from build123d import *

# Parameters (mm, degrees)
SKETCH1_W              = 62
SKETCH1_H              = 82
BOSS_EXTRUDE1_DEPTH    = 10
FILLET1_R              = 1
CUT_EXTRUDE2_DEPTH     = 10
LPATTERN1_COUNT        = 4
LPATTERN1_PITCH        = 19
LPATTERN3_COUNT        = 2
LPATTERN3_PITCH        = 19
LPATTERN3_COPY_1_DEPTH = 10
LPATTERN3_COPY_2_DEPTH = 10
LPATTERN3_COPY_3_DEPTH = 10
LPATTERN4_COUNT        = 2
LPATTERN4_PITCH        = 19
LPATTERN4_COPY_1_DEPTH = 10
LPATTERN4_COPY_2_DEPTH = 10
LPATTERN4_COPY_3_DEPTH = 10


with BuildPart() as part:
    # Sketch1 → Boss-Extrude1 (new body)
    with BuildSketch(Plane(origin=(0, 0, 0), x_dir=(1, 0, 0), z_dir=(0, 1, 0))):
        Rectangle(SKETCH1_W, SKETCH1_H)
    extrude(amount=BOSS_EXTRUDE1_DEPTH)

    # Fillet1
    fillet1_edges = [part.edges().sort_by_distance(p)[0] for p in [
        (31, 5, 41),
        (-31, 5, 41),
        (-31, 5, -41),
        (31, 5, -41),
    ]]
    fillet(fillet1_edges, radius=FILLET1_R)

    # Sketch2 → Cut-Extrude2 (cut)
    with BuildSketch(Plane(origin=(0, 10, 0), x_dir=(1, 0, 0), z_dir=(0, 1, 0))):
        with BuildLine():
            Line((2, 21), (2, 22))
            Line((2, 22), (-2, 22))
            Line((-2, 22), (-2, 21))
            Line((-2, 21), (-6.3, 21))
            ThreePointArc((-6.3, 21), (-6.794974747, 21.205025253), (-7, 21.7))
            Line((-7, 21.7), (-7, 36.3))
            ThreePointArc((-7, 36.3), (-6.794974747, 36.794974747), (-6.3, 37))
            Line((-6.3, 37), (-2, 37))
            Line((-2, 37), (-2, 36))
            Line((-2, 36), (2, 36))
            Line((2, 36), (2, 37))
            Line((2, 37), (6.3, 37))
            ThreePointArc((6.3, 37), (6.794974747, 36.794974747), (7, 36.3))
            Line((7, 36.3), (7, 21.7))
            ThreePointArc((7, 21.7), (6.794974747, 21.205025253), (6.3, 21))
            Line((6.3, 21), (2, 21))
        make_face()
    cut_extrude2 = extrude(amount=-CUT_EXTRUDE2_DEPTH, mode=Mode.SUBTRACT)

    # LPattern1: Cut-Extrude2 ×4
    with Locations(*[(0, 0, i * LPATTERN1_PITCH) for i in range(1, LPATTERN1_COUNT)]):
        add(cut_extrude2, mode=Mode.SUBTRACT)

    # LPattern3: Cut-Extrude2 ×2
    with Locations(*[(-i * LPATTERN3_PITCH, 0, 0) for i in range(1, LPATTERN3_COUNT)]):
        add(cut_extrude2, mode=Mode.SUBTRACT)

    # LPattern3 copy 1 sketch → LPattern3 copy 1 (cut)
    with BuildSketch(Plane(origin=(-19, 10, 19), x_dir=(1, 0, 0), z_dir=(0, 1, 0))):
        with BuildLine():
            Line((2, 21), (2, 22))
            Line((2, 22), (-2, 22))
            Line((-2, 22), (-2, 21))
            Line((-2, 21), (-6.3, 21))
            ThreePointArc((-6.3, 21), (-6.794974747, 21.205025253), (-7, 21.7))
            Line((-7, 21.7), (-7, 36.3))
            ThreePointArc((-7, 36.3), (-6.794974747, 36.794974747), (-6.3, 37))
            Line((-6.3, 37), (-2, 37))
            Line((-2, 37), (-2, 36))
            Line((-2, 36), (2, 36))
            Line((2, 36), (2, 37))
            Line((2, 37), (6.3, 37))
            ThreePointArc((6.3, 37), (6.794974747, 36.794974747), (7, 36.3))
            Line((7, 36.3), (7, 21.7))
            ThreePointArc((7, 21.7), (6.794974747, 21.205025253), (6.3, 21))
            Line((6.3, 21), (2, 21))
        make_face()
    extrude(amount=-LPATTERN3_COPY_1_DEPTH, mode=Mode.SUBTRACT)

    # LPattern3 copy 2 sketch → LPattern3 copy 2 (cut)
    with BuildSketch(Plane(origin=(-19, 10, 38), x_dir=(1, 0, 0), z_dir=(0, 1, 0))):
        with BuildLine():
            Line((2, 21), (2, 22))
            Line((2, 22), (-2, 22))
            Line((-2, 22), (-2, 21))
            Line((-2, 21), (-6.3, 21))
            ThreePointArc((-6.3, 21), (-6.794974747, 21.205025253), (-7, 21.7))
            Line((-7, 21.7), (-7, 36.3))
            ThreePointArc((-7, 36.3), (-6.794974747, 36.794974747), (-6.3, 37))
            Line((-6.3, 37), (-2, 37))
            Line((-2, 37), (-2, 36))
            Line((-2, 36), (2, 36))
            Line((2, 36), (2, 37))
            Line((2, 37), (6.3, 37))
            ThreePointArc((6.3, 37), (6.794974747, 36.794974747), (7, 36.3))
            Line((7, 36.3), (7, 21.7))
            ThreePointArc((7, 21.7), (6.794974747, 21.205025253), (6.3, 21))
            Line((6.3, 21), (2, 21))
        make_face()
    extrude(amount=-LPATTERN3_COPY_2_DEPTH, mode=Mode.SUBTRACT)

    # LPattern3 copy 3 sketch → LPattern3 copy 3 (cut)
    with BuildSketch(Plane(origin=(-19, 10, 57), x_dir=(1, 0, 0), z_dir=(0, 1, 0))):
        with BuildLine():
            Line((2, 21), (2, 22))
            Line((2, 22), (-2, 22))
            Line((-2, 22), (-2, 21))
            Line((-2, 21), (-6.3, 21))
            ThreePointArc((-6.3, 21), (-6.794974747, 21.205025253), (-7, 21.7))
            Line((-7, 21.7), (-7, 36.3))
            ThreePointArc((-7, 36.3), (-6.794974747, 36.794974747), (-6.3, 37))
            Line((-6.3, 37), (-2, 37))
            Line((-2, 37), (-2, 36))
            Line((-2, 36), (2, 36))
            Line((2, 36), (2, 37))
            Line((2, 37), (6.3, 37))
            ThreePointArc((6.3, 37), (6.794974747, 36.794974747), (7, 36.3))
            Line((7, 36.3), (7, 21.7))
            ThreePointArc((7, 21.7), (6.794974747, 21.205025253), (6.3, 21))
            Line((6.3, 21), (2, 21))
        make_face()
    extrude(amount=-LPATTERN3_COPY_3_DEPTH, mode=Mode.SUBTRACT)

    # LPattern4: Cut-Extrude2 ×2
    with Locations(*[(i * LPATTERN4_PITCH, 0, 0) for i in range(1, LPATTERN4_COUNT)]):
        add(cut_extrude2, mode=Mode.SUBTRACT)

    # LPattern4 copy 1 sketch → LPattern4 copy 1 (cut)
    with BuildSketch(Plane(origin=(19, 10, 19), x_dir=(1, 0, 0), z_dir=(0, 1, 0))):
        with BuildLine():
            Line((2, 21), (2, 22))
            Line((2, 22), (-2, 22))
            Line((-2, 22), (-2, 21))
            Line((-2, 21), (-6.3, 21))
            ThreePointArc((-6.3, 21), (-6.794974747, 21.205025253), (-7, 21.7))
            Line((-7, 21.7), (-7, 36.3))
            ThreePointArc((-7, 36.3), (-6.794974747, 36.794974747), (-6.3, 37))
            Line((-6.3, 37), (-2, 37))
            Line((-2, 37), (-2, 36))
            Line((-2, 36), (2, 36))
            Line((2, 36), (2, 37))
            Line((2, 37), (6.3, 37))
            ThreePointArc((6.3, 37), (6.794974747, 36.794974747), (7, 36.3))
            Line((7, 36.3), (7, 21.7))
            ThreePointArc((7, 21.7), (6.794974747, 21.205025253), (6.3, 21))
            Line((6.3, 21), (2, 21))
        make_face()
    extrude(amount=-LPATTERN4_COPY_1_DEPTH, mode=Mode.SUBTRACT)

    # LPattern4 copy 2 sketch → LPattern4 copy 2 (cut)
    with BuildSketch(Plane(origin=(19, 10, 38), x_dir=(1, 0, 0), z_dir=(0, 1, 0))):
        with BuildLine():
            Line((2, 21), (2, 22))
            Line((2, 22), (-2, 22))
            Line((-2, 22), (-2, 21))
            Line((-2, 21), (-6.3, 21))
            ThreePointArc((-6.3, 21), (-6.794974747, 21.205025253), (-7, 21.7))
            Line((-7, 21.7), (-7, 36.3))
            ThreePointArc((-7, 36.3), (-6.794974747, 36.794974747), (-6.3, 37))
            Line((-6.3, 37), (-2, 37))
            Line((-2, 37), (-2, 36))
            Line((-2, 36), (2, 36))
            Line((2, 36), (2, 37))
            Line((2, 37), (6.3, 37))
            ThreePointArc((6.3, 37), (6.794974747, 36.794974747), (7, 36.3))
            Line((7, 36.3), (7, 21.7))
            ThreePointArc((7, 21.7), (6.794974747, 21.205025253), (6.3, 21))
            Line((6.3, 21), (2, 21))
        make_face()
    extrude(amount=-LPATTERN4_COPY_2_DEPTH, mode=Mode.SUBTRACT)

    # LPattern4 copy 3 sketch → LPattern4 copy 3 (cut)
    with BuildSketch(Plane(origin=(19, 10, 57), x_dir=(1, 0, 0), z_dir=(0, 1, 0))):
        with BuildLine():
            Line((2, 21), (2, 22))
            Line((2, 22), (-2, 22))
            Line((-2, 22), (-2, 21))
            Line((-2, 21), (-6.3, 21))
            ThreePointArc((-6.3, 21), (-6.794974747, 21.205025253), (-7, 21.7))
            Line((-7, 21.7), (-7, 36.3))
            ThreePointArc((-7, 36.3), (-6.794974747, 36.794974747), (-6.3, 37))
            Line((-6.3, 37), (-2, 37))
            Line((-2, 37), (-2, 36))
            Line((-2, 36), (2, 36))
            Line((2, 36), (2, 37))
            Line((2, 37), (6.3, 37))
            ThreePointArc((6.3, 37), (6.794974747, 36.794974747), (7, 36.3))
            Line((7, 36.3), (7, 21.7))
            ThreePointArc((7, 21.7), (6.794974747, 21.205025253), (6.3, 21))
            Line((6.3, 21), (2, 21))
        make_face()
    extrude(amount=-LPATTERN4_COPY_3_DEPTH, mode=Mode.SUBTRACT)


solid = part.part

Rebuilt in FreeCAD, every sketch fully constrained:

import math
import FreeCAD as App
import Part
import Sketcher

V = App.Vector


def edges_at(feature, points):
    """Names of the edges that pass closest to the given points."""
    edges = feature.Shape.Edges
    near = lambda p: min(range(len(edges)), key=lambda i: edges[i].distToShape(Part.Vertex(*p))[0])
    return sorted({f"Edge{near(p) + 1}" for p in points})


def add_polygon(sketch, points):
    """Adds a closed chain of lines whose ends are joined by coincident constraints."""
    first, n = sketch.GeometryCount, len(points)
    for a, b in zip(points, points[1:] + points[:1]):
        sketch.addGeometry(Part.LineSegment(App.Vector(*a, 0), App.Vector(*b, 0)), False)
    for i in range(n):
        sketch.addConstraint(Sketcher.Constraint("Coincident", first + i, 2, first + (i + 1) % n, 1))

doc = App.newDocument("Part")
params = doc.addObject("Spreadsheet::Sheet", "Params")
for row, (alias, value) in enumerate([
    ("sketch1_width", "62 mm"),
    ("sketch1_height", "82 mm"),
    ("pad1_length", "10 mm"),
    ("fillet_radius", "1 mm"),
    ("sketch2_radius", "0.7 mm"),
    ("sketch2_width", "4 mm"),
    ("sketch2_height", "1 mm"),
    ("sketch2_width2", "4.3 mm"),
    ("sketch2_height2", "14.6 mm"),
    ("pocket1_length", "10 mm"),
    ("linearpattern_pitch", "19 mm"),
    ("linearpattern2_pitch", "19 mm"),
    ("sketch3_radius", "0.7 mm"),
    ("sketch3_width", "4 mm"),
    ("sketch3_height", "1 mm"),
    ("sketch3_width2", "4.3 mm"),
    ("sketch3_height2", "14.6 mm"),
    ("pocket2_length", "10 mm"),
    ("sketch4_radius", "0.7 mm"),
    ("sketch4_width", "4 mm"),
    ("sketch4_height", "1 mm"),
    ("sketch4_width2", "4.3 mm"),
    ("sketch4_height2", "14.6 mm"),
    ("pocket3_length", "10 mm"),
    ("sketch5_radius", "0.7 mm"),
    ("sketch5_width", "4 mm"),
    ("sketch5_height", "1 mm"),
    ("sketch5_width2", "4.3 mm"),
    ("sketch5_height2", "14.6 mm"),
    ("pocket4_length", "10 mm"),
    ("linearpattern3_pitch", "19 mm"),
    ("sketch6_radius", "0.7 mm"),
    ("sketch6_width", "4 mm"),
    ("sketch6_height", "1 mm"),
    ("sketch6_width2", "4.3 mm"),
    ("sketch6_height2", "14.6 mm"),
    ("pocket5_length", "10 mm"),
    ("sketch7_radius", "0.7 mm"),
    ("sketch7_width", "4 mm"),
    ("sketch7_height", "1 mm"),
    ("sketch7_width2", "4.3 mm"),
    ("sketch7_height2", "14.6 mm"),
    ("pocket6_length", "10 mm"),
    ("sketch8_radius", "0.7 mm"),
    ("sketch8_width", "4 mm"),
    ("sketch8_height", "1 mm"),
    ("sketch8_width2", "4.3 mm"),
    ("sketch8_height2", "14.6 mm"),
    ("pocket7_length", "10 mm"),
], start=1):
    params.set(f"A{row}", alias)
    params.set(f"B{row}", "=" + value)
    params.setAlias(f"B{row}", alias)

body = doc.addObject("PartDesign::Body", "Body")

sketch1 = body.newObject("Sketcher::SketchObject", "Sketch")
sketch1.AttachmentSupport = (doc.getObject("XZ_Plane"), [""])
sketch1.MapMode = "FlatFace"
add_polygon(sketch1, [(-31, -41), (-31, 41), (31, 41), (31, -41)])
sketch1.addConstraint(Sketcher.Constraint("Vertical", 0))
sketch1.addConstraint(Sketcher.Constraint("Horizontal", 1))
sketch1.addConstraint(Sketcher.Constraint("Vertical", 2))
sketch1.addConstraint(Sketcher.Constraint("Horizontal", 3))
sketch1.addConstraint(Sketcher.Constraint("Symmetric", 0, 2, 2, 2, -1, 1))
sketch1.addConstraint(Sketcher.Constraint("DistanceX", 1, 1, 1, 2, 62.0))
sketch1.addConstraint(Sketcher.Constraint("DistanceY", 0, 1, 0, 2, 82.0))
sketch1.setExpression("Constraints[9]", "Params.sketch1_width")
sketch1.setExpression("Constraints[10]", "Params.sketch1_height")
pad1 = body.newObject("PartDesign::Pad", "Pad")
pad1.Profile = sketch1
pad1.setExpression("Length", "Params.pad1_length")
pad1.Reversed = True
doc.recompute()

fillet = body.newObject("PartDesign::Fillet", "Fillet")
fillet.Base = (pad1, edges_at(pad1, [
    (31, 5, 41),
    (-31, 5, 41),
    (-31, 5, -41),
    (31, 5, -41),
]))
fillet.setExpression("Radius", "Params.fillet_radius")

sketch2 = body.newObject("Sketcher::SketchObject", "Sketch001")
sketch2.AttachmentSupport = (doc.getObject("XZ_Plane"), [""])
sketch2.MapMode = "FlatFace"
sketch2.AttachmentOffset = App.Placement(V(0, 0, -10), App.Rotation())
sketch2.addGeometry(Part.LineSegment(V(2, -22, 0), V(2, -21, 0)), False)
sketch2.addGeometry(Part.LineSegment(V(2, -21, 0), V(6.3, -21, 0)), False)
sketch2.addGeometry(Part.ArcOfCircle(Part.Circle(V(6.3, -21.7, 0), V(0, 0, 1), 0.7), math.radians(0), math.radians(90)), False)
sketch2.addGeometry(Part.LineSegment(V(7, -21.7, 0), V(7, -36.3, 0)), False)
sketch2.addGeometry(Part.ArcOfCircle(Part.Circle(V(6.3, -36.3, 0), V(0, 0, 1), 0.7), math.radians(-90), math.radians(0)), False)
sketch2.addGeometry(Part.LineSegment(V(6.3, -37, 0), V(2, -37, 0)), False)
sketch2.addGeometry(Part.LineSegment(V(2, -37, 0), V(2, -36, 0)), False)
sketch2.addGeometry(Part.LineSegment(V(2, -36, 0), V(-2, -36, 0)), False)
sketch2.addGeometry(Part.LineSegment(V(-2, -36, 0), V(-2, -37, 0)), False)
sketch2.addGeometry(Part.LineSegment(V(-2, -37, 0), V(-6.3, -37, 0)), False)
sketch2.addGeometry(Part.ArcOfCircle(Part.Circle(V(-6.3, -36.3, 0), V(0, 0, 1), 0.7), math.radians(180), math.radians(270)), False)
sketch2.addGeometry(Part.LineSegment(V(-7, -36.3, 0), V(-7, -21.7, 0)), False)
sketch2.addGeometry(Part.ArcOfCircle(Part.Circle(V(-6.3, -21.7, 0), V(0, 0, 1), 0.7), math.radians(90), math.radians(180)), False)
sketch2.addGeometry(Part.LineSegment(V(-6.3, -21, 0), V(-2, -21, 0)), False)
sketch2.addGeometry(Part.LineSegment(V(-2, -21, 0), V(-2, -22, 0)), False)
sketch2.addGeometry(Part.LineSegment(V(-2, -22, 0), V(2, -22, 0)), False)
sketch2.addConstraint(Sketcher.Constraint("Coincident", 0, 2, 1, 1))
sketch2.addConstraint(Sketcher.Constraint("Tangent", 1, 2, 2, 2))
sketch2.addConstraint(Sketcher.Constraint("Tangent", 2, 1, 3, 1))
sketch2.addConstraint(Sketcher.Constraint("Tangent", 3, 2, 4, 2))
sketch2.addConstraint(Sketcher.Constraint("Tangent", 4, 1, 5, 1))
sketch2.addConstraint(Sketcher.Constraint("Coincident", 5, 2, 6, 1))
sketch2.addConstraint(Sketcher.Constraint("Coincident", 6, 2, 7, 1))
sketch2.addConstraint(Sketcher.Constraint("Coincident", 7, 2, 8, 1))
sketch2.addConstraint(Sketcher.Constraint("Coincident", 8, 2, 9, 1))
sketch2.addConstraint(Sketcher.Constraint("Tangent", 9, 2, 10, 2))
sketch2.addConstraint(Sketcher.Constraint("Tangent", 10, 1, 11, 1))
sketch2.addConstraint(Sketcher.Constraint("Tangent", 11, 2, 12, 2))
sketch2.addConstraint(Sketcher.Constraint("Tangent", 12, 1, 13, 1))
sketch2.addConstraint(Sketcher.Constraint("Coincident", 13, 2, 14, 1))
sketch2.addConstraint(Sketcher.Constraint("Coincident", 14, 2, 15, 1))
sketch2.addConstraint(Sketcher.Constraint("Coincident", 15, 2, 0, 1))
sketch2.addConstraint(Sketcher.Constraint("Vertical", 0))
sketch2.addConstraint(Sketcher.Constraint("Horizontal", 1))
sketch2.addConstraint(Sketcher.Constraint("Vertical", 3))
sketch2.addConstraint(Sketcher.Constraint("Horizontal", 5))
sketch2.addConstraint(Sketcher.Constraint("Vertical", 6))
sketch2.addConstraint(Sketcher.Constraint("Horizontal", 7))
sketch2.addConstraint(Sketcher.Constraint("Vertical", 8))
sketch2.addConstraint(Sketcher.Constraint("Horizontal", 9))
sketch2.addConstraint(Sketcher.Constraint("Vertical", 11))
sketch2.addConstraint(Sketcher.Constraint("Horizontal", 13))
sketch2.addConstraint(Sketcher.Constraint("Vertical", 14))
sketch2.addConstraint(Sketcher.Constraint("Horizontal", 15))
sketch2.addConstraint(Sketcher.Constraint("Equal", 2, 4))
sketch2.addConstraint(Sketcher.Constraint("Equal", 4, 10))
sketch2.addConstraint(Sketcher.Constraint("Equal", 10, 12))
sketch2.addConstraint(Sketcher.Constraint("Symmetric", 4, 3, 10, 3, -2))
sketch2.addConstraint(Sketcher.Constraint("Symmetric", 0, 2, 13, 2, -2))
sketch2.addConstraint(Sketcher.Constraint("Vertical", 0, 2, 5, 2))
sketch2.addConstraint(Sketcher.Constraint("Vertical", 8, 2, 13, 2))
sketch2.addConstraint(Sketcher.Constraint("Equal", 0, 6))
sketch2.addConstraint(Sketcher.Constraint("Radius", 2, 0.7))
sketch2.addConstraint(Sketcher.Constraint("DistanceX", 7, 2, 7, 1, 4.0))
sketch2.addConstraint(Sketcher.Constraint("DistanceY", 0, 1, 0, 2, 1.0))
sketch2.addConstraint(Sketcher.Constraint("DistanceX", 1, 1, 1, 2, 4.3))
sketch2.addConstraint(Sketcher.Constraint("DistanceY", 3, 2, 3, 1, 14.6))
sketch2.addConstraint(Sketcher.Constraint("DistanceY", 0, 2, -1, 1, 21.0))
sketch2.setExpression("Constraints[36]", "Params.sketch2_radius")
sketch2.setExpression("Constraints[37]", "Params.sketch2_width")
sketch2.setExpression("Constraints[38]", "Params.sketch2_height")
sketch2.setExpression("Constraints[39]", "Params.sketch2_width2")
sketch2.setExpression("Constraints[40]", "Params.sketch2_height2")
pocket1 = body.newObject("PartDesign::Pocket", "Pocket")
pocket1.Profile = sketch2
pocket1.setExpression("Length", "Params.pocket1_length")
pocket1.Reversed = True
doc.recompute()

linearpattern = body.newObject("PartDesign::LinearPattern", "LinearPattern")
linearpattern.Originals = [pocket1]
linearpattern.Direction = (doc.getObject("Z_Axis"), [""])
linearpattern.Mode = "offset"
linearpattern.setExpression("Offset", "Params.linearpattern_pitch")
linearpattern.Occurrences = 4
body.Tip = linearpattern
doc.recompute()

linearpattern2 = body.newObject("PartDesign::LinearPattern", "LinearPattern001")
linearpattern2.Originals = [pocket1]
linearpattern2.Direction = (doc.getObject("X_Axis"), [""])
linearpattern2.Mode = "offset"
linearpattern2.setExpression("Offset", "Params.linearpattern2_pitch")
linearpattern2.Occurrences = 2
linearpattern2.Reversed = True
body.Tip = linearpattern2

sketch3 = body.newObject("Sketcher::SketchObject", "Sketch002")
sketch3.AttachmentSupport = (doc.getObject("XZ_Plane"), [""])
sketch3.MapMode = "FlatFace"
sketch3.AttachmentOffset = App.Placement(V(0, 0, -10), App.Rotation())
sketch3.addGeometry(Part.LineSegment(V(-17, -3, 0), V(-17, -2, 0)), False)
sketch3.addGeometry(Part.LineSegment(V(-17, -2, 0), V(-12.7, -2, 0)), False)
sketch3.addGeometry(Part.ArcOfCircle(Part.Circle(V(-12.7, -2.7, 0), V(0, 0, 1), 0.7), math.radians(0), math.radians(90)), False)
sketch3.addGeometry(Part.LineSegment(V(-12, -2.7, 0), V(-12, -17.3, 0)), False)
sketch3.addGeometry(Part.ArcOfCircle(Part.Circle(V(-12.7, -17.3, 0), V(0, 0, 1), 0.7), math.radians(-90), math.radians(0)), False)
sketch3.addGeometry(Part.LineSegment(V(-12.7, -18, 0), V(-17, -18, 0)), False)
sketch3.addGeometry(Part.LineSegment(V(-17, -18, 0), V(-17, -17, 0)), False)
sketch3.addGeometry(Part.LineSegment(V(-17, -17, 0), V(-21, -17, 0)), False)
sketch3.addGeometry(Part.LineSegment(V(-21, -17, 0), V(-21, -18, 0)), False)
sketch3.addGeometry(Part.LineSegment(V(-21, -18, 0), V(-25.3, -18, 0)), False)
sketch3.addGeometry(Part.ArcOfCircle(Part.Circle(V(-25.3, -17.3, 0), V(0, 0, 1), 0.7), math.radians(180), math.radians(270)), False)
sketch3.addGeometry(Part.LineSegment(V(-26, -17.3, 0), V(-26, -2.7, 0)), False)
sketch3.addGeometry(Part.ArcOfCircle(Part.Circle(V(-25.3, -2.7, 0), V(0, 0, 1), 0.7), math.radians(90), math.radians(180)), False)
sketch3.addGeometry(Part.LineSegment(V(-25.3, -2, 0), V(-21, -2, 0)), False)
sketch3.addGeometry(Part.LineSegment(V(-21, -2, 0), V(-21, -3, 0)), False)
sketch3.addGeometry(Part.LineSegment(V(-21, -3, 0), V(-17, -3, 0)), False)
sketch3.addConstraint(Sketcher.Constraint("Coincident", 0, 2, 1, 1))
sketch3.addConstraint(Sketcher.Constraint("Tangent", 1, 2, 2, 2))
sketch3.addConstraint(Sketcher.Constraint("Tangent", 2, 1, 3, 1))
sketch3.addConstraint(Sketcher.Constraint("Tangent", 3, 2, 4, 2))
sketch3.addConstraint(Sketcher.Constraint("Tangent", 4, 1, 5, 1))
sketch3.addConstraint(Sketcher.Constraint("Coincident", 5, 2, 6, 1))
sketch3.addConstraint(Sketcher.Constraint("Coincident", 6, 2, 7, 1))
sketch3.addConstraint(Sketcher.Constraint("Coincident", 7, 2, 8, 1))
sketch3.addConstraint(Sketcher.Constraint("Coincident", 8, 2, 9, 1))
sketch3.addConstraint(Sketcher.Constraint("Tangent", 9, 2, 10, 2))
sketch3.addConstraint(Sketcher.Constraint("Tangent", 10, 1, 11, 1))
sketch3.addConstraint(Sketcher.Constraint("Tangent", 11, 2, 12, 2))
sketch3.addConstraint(Sketcher.Constraint("Tangent", 12, 1, 13, 1))
sketch3.addConstraint(Sketcher.Constraint("Coincident", 13, 2, 14, 1))
sketch3.addConstraint(Sketcher.Constraint("Coincident", 14, 2, 15, 1))
sketch3.addConstraint(Sketcher.Constraint("Coincident", 15, 2, 0, 1))
sketch3.addConstraint(Sketcher.Constraint("Vertical", 0))
sketch3.addConstraint(Sketcher.Constraint("Horizontal", 1))
sketch3.addConstraint(Sketcher.Constraint("Vertical", 3))
sketch3.addConstraint(Sketcher.Constraint("Horizontal", 5))
sketch3.addConstraint(Sketcher.Constraint("Vertical", 6))
sketch3.addConstraint(Sketcher.Constraint("Horizontal", 7))
sketch3.addConstraint(Sketcher.Constraint("Vertical", 8))
sketch3.addConstraint(Sketcher.Constraint("Horizontal", 9))
sketch3.addConstraint(Sketcher.Constraint("Vertical", 11))
sketch3.addConstraint(Sketcher.Constraint("Horizontal", 13))
sketch3.addConstraint(Sketcher.Constraint("Vertical", 14))
sketch3.addConstraint(Sketcher.Constraint("Horizontal", 15))
sketch3.addConstraint(Sketcher.Constraint("Equal", 2, 4))
sketch3.addConstraint(Sketcher.Constraint("Equal", 4, 10))
sketch3.addConstraint(Sketcher.Constraint("Equal", 10, 12))
sketch3.addConstraint(Sketcher.Constraint("Horizontal", 4, 3, 10, 3))
sketch3.addConstraint(Sketcher.Constraint("Horizontal", 2, 3, 12, 3))
sketch3.addConstraint(Sketcher.Constraint("Vertical", 0, 2, 5, 2))
sketch3.addConstraint(Sketcher.Constraint("Vertical", 8, 2, 13, 2))
sketch3.addConstraint(Sketcher.Constraint("Equal", 5, 9))
sketch3.addConstraint(Sketcher.Constraint("Equal", 0, 6))
sketch3.addConstraint(Sketcher.Constraint("Radius", 2, 0.7))
sketch3.addConstraint(Sketcher.Constraint("DistanceX", 7, 2, 7, 1, 4.0))
sketch3.addConstraint(Sketcher.Constraint("DistanceY", 0, 1, 0, 2, 1.0))
sketch3.addConstraint(Sketcher.Constraint("DistanceX", 1, 1, 1, 2, 4.3))
sketch3.addConstraint(Sketcher.Constraint("DistanceY", 3, 2, 3, 1, 14.6))
sketch3.addConstraint(Sketcher.Constraint("DistanceX", 0, 2, -1, 1, 17.0))
sketch3.addConstraint(Sketcher.Constraint("DistanceY", 0, 2, -1, 1, 2.0))
sketch3.setExpression("Constraints[37]", "Params.sketch3_radius")
sketch3.setExpression("Constraints[38]", "Params.sketch3_width")
sketch3.setExpression("Constraints[39]", "Params.sketch3_height")
sketch3.setExpression("Constraints[40]", "Params.sketch3_width2")
sketch3.setExpression("Constraints[41]", "Params.sketch3_height2")
pocket2 = body.newObject("PartDesign::Pocket", "Pocket001")
pocket2.Profile = sketch3
pocket2.setExpression("Length", "Params.pocket2_length")
pocket2.Reversed = True

sketch4 = body.newObject("Sketcher::SketchObject", "Sketch003")
sketch4.AttachmentSupport = (doc.getObject("XZ_Plane"), [""])
sketch4.MapMode = "FlatFace"
sketch4.AttachmentOffset = App.Placement(V(0, 0, -10), App.Rotation())
sketch4.addGeometry(Part.LineSegment(V(-17, 16, 0), V(-17, 17, 0)), False)
sketch4.addGeometry(Part.LineSegment(V(-17, 17, 0), V(-12.7, 17, 0)), False)
sketch4.addGeometry(Part.ArcOfCircle(Part.Circle(V(-12.7, 16.3, 0), V(0, 0, 1), 0.7), math.radians(0), math.radians(90)), False)
sketch4.addGeometry(Part.LineSegment(V(-12, 16.3, 0), V(-12, 1.7, 0)), False)
sketch4.addGeometry(Part.ArcOfCircle(Part.Circle(V(-12.7, 1.7, 0), V(0, 0, 1), 0.7), math.radians(-90), math.radians(0)), False)
sketch4.addGeometry(Part.LineSegment(V(-12.7, 1, 0), V(-17, 1, 0)), False)
sketch4.addGeometry(Part.LineSegment(V(-17, 1, 0), V(-17, 2, 0)), False)
sketch4.addGeometry(Part.LineSegment(V(-17, 2, 0), V(-21, 2, 0)), False)
sketch4.addGeometry(Part.LineSegment(V(-21, 2, 0), V(-21, 1, 0)), False)
sketch4.addGeometry(Part.LineSegment(V(-21, 1, 0), V(-25.3, 1, 0)), False)
sketch4.addGeometry(Part.ArcOfCircle(Part.Circle(V(-25.3, 1.7, 0), V(0, 0, 1), 0.7), math.radians(180), math.radians(270)), False)
sketch4.addGeometry(Part.LineSegment(V(-26, 1.7, 0), V(-26, 16.3, 0)), False)
sketch4.addGeometry(Part.ArcOfCircle(Part.Circle(V(-25.3, 16.3, 0), V(0, 0, 1), 0.7), math.radians(90), math.radians(180)), False)
sketch4.addGeometry(Part.LineSegment(V(-25.3, 17, 0), V(-21, 17, 0)), False)
sketch4.addGeometry(Part.LineSegment(V(-21, 17, 0), V(-21, 16, 0)), False)
sketch4.addGeometry(Part.LineSegment(V(-21, 16, 0), V(-17, 16, 0)), False)
sketch4.addConstraint(Sketcher.Constraint("Coincident", 0, 2, 1, 1))
sketch4.addConstraint(Sketcher.Constraint("Tangent", 1, 2, 2, 2))
sketch4.addConstraint(Sketcher.Constraint("Tangent", 2, 1, 3, 1))
sketch4.addConstraint(Sketcher.Constraint("Tangent", 3, 2, 4, 2))
sketch4.addConstraint(Sketcher.Constraint("Tangent", 4, 1, 5, 1))
sketch4.addConstraint(Sketcher.Constraint("Coincident", 5, 2, 6, 1))
sketch4.addConstraint(Sketcher.Constraint("Coincident", 6, 2, 7, 1))
sketch4.addConstraint(Sketcher.Constraint("Coincident", 7, 2, 8, 1))
sketch4.addConstraint(Sketcher.Constraint("Coincident", 8, 2, 9, 1))
sketch4.addConstraint(Sketcher.Constraint("Tangent", 9, 2, 10, 2))
sketch4.addConstraint(Sketcher.Constraint("Tangent", 10, 1, 11, 1))
sketch4.addConstraint(Sketcher.Constraint("Tangent", 11, 2, 12, 2))
sketch4.addConstraint(Sketcher.Constraint("Tangent", 12, 1, 13, 1))
sketch4.addConstraint(Sketcher.Constraint("Coincident", 13, 2, 14, 1))
sketch4.addConstraint(Sketcher.Constraint("Coincident", 14, 2, 15, 1))
sketch4.addConstraint(Sketcher.Constraint("Coincident", 15, 2, 0, 1))
sketch4.addConstraint(Sketcher.Constraint("Vertical", 0))
sketch4.addConstraint(Sketcher.Constraint("Horizontal", 1))
sketch4.addConstraint(Sketcher.Constraint("Vertical", 3))
sketch4.addConstraint(Sketcher.Constraint("Horizontal", 5))
sketch4.addConstraint(Sketcher.Constraint("Vertical", 6))
sketch4.addConstraint(Sketcher.Constraint("Horizontal", 7))
sketch4.addConstraint(Sketcher.Constraint("Vertical", 8))
sketch4.addConstraint(Sketcher.Constraint("Horizontal", 9))
sketch4.addConstraint(Sketcher.Constraint("Vertical", 11))
sketch4.addConstraint(Sketcher.Constraint("Horizontal", 13))
sketch4.addConstraint(Sketcher.Constraint("Vertical", 14))
sketch4.addConstraint(Sketcher.Constraint("Horizontal", 15))
sketch4.addConstraint(Sketcher.Constraint("Equal", 2, 4))
sketch4.addConstraint(Sketcher.Constraint("Equal", 4, 10))
sketch4.addConstraint(Sketcher.Constraint("Equal", 10, 12))
sketch4.addConstraint(Sketcher.Constraint("Horizontal", 4, 3, 10, 3))
sketch4.addConstraint(Sketcher.Constraint("Horizontal", 2, 3, 12, 3))
sketch4.addConstraint(Sketcher.Constraint("Vertical", 0, 2, 5, 2))
sketch4.addConstraint(Sketcher.Constraint("Vertical", 8, 2, 13, 2))
sketch4.addConstraint(Sketcher.Constraint("Equal", 5, 9))
sketch4.addConstraint(Sketcher.Constraint("Equal", 0, 6))
sketch4.addConstraint(Sketcher.Constraint("Radius", 2, 0.7))
sketch4.addConstraint(Sketcher.Constraint("DistanceX", 7, 2, 7, 1, 4.0))
sketch4.addConstraint(Sketcher.Constraint("DistanceY", 0, 1, 0, 2, 1.0))
sketch4.addConstraint(Sketcher.Constraint("DistanceX", 1, 1, 1, 2, 4.3))
sketch4.addConstraint(Sketcher.Constraint("DistanceY", 3, 2, 3, 1, 14.6))
sketch4.addConstraint(Sketcher.Constraint("DistanceX", 0, 2, -1, 1, 17.0))
sketch4.addConstraint(Sketcher.Constraint("DistanceY", -1, 1, 0, 2, 17.0))
sketch4.setExpression("Constraints[37]", "Params.sketch4_radius")
sketch4.setExpression("Constraints[38]", "Params.sketch4_width")
sketch4.setExpression("Constraints[39]", "Params.sketch4_height")
sketch4.setExpression("Constraints[40]", "Params.sketch4_width2")
sketch4.setExpression("Constraints[41]", "Params.sketch4_height2")
pocket3 = body.newObject("PartDesign::Pocket", "Pocket002")
pocket3.Profile = sketch4
pocket3.setExpression("Length", "Params.pocket3_length")
pocket3.Reversed = True

sketch5 = body.newObject("Sketcher::SketchObject", "Sketch004")
sketch5.AttachmentSupport = (doc.getObject("XZ_Plane"), [""])
sketch5.MapMode = "FlatFace"
sketch5.AttachmentOffset = App.Placement(V(0, 0, -10), App.Rotation())
sketch5.addGeometry(Part.LineSegment(V(-17, 35, 0), V(-17, 36, 0)), False)
sketch5.addGeometry(Part.LineSegment(V(-17, 36, 0), V(-12.7, 36, 0)), False)
sketch5.addGeometry(Part.ArcOfCircle(Part.Circle(V(-12.7, 35.3, 0), V(0, 0, 1), 0.7), math.radians(0), math.radians(90)), False)
sketch5.addGeometry(Part.LineSegment(V(-12, 35.3, 0), V(-12, 20.7, 0)), False)
sketch5.addGeometry(Part.ArcOfCircle(Part.Circle(V(-12.7, 20.7, 0), V(0, 0, 1), 0.7), math.radians(-90), math.radians(0)), False)
sketch5.addGeometry(Part.LineSegment(V(-12.7, 20, 0), V(-17, 20, 0)), False)
sketch5.addGeometry(Part.LineSegment(V(-17, 20, 0), V(-17, 21, 0)), False)
sketch5.addGeometry(Part.LineSegment(V(-17, 21, 0), V(-21, 21, 0)), False)
sketch5.addGeometry(Part.LineSegment(V(-21, 21, 0), V(-21, 20, 0)), False)
sketch5.addGeometry(Part.LineSegment(V(-21, 20, 0), V(-25.3, 20, 0)), False)
sketch5.addGeometry(Part.ArcOfCircle(Part.Circle(V(-25.3, 20.7, 0), V(0, 0, 1), 0.7), math.radians(180), math.radians(270)), False)
sketch5.addGeometry(Part.LineSegment(V(-26, 20.7, 0), V(-26, 35.3, 0)), False)
sketch5.addGeometry(Part.ArcOfCircle(Part.Circle(V(-25.3, 35.3, 0), V(0, 0, 1), 0.7), math.radians(90), math.radians(180)), False)
sketch5.addGeometry(Part.LineSegment(V(-25.3, 36, 0), V(-21, 36, 0)), False)
sketch5.addGeometry(Part.LineSegment(V(-21, 36, 0), V(-21, 35, 0)), False)
sketch5.addGeometry(Part.LineSegment(V(-21, 35, 0), V(-17, 35, 0)), False)
sketch5.addConstraint(Sketcher.Constraint("Coincident", 0, 2, 1, 1))
sketch5.addConstraint(Sketcher.Constraint("Tangent", 1, 2, 2, 2))
sketch5.addConstraint(Sketcher.Constraint("Tangent", 2, 1, 3, 1))
sketch5.addConstraint(Sketcher.Constraint("Tangent", 3, 2, 4, 2))
sketch5.addConstraint(Sketcher.Constraint("Tangent", 4, 1, 5, 1))
sketch5.addConstraint(Sketcher.Constraint("Coincident", 5, 2, 6, 1))
sketch5.addConstraint(Sketcher.Constraint("Coincident", 6, 2, 7, 1))
sketch5.addConstraint(Sketcher.Constraint("Coincident", 7, 2, 8, 1))
sketch5.addConstraint(Sketcher.Constraint("Coincident", 8, 2, 9, 1))
sketch5.addConstraint(Sketcher.Constraint("Tangent", 9, 2, 10, 2))
sketch5.addConstraint(Sketcher.Constraint("Tangent", 10, 1, 11, 1))
sketch5.addConstraint(Sketcher.Constraint("Tangent", 11, 2, 12, 2))
sketch5.addConstraint(Sketcher.Constraint("Tangent", 12, 1, 13, 1))
sketch5.addConstraint(Sketcher.Constraint("Coincident", 13, 2, 14, 1))
sketch5.addConstraint(Sketcher.Constraint("Coincident", 14, 2, 15, 1))
sketch5.addConstraint(Sketcher.Constraint("Coincident", 15, 2, 0, 1))
sketch5.addConstraint(Sketcher.Constraint("Vertical", 0))
sketch5.addConstraint(Sketcher.Constraint("Horizontal", 1))
sketch5.addConstraint(Sketcher.Constraint("Vertical", 3))
sketch5.addConstraint(Sketcher.Constraint("Horizontal", 5))
sketch5.addConstraint(Sketcher.Constraint("Vertical", 6))
sketch5.addConstraint(Sketcher.Constraint("Horizontal", 7))
sketch5.addConstraint(Sketcher.Constraint("Vertical", 8))
sketch5.addConstraint(Sketcher.Constraint("Horizontal", 9))
sketch5.addConstraint(Sketcher.Constraint("Vertical", 11))
sketch5.addConstraint(Sketcher.Constraint("Horizontal", 13))
sketch5.addConstraint(Sketcher.Constraint("Vertical", 14))
sketch5.addConstraint(Sketcher.Constraint("Horizontal", 15))
sketch5.addConstraint(Sketcher.Constraint("Equal", 2, 4))
sketch5.addConstraint(Sketcher.Constraint("Equal", 4, 10))
sketch5.addConstraint(Sketcher.Constraint("Equal", 10, 12))
sketch5.addConstraint(Sketcher.Constraint("Horizontal", 4, 3, 10, 3))
sketch5.addConstraint(Sketcher.Constraint("Horizontal", 2, 3, 12, 3))
sketch5.addConstraint(Sketcher.Constraint("Vertical", 0, 2, 5, 2))
sketch5.addConstraint(Sketcher.Constraint("Vertical", 8, 2, 13, 2))
sketch5.addConstraint(Sketcher.Constraint("Equal", 5, 9))
sketch5.addConstraint(Sketcher.Constraint("Equal", 0, 6))
sketch5.addConstraint(Sketcher.Constraint("Radius", 2, 0.7))
sketch5.addConstraint(Sketcher.Constraint("DistanceX", 7, 2, 7, 1, 4.0))
sketch5.addConstraint(Sketcher.Constraint("DistanceY", 0, 1, 0, 2, 1.0))
sketch5.addConstraint(Sketcher.Constraint("DistanceX", 1, 1, 1, 2, 4.3))
sketch5.addConstraint(Sketcher.Constraint("DistanceY", 3, 2, 3, 1, 14.6))
sketch5.addConstraint(Sketcher.Constraint("DistanceX", 0, 2, -1, 1, 17.0))
sketch5.addConstraint(Sketcher.Constraint("DistanceY", -1, 1, 0, 2, 36.0))
sketch5.setExpression("Constraints[37]", "Params.sketch5_radius")
sketch5.setExpression("Constraints[38]", "Params.sketch5_width")
sketch5.setExpression("Constraints[39]", "Params.sketch5_height")
sketch5.setExpression("Constraints[40]", "Params.sketch5_width2")
sketch5.setExpression("Constraints[41]", "Params.sketch5_height2")
pocket4 = body.newObject("PartDesign::Pocket", "Pocket003")
pocket4.Profile = sketch5
pocket4.setExpression("Length", "Params.pocket4_length")
pocket4.Reversed = True
doc.recompute()

linearpattern3 = body.newObject("PartDesign::LinearPattern", "LinearPattern002")
linearpattern3.Originals = [pocket1]
linearpattern3.Direction = (doc.getObject("X_Axis"), [""])
linearpattern3.Mode = "offset"
linearpattern3.setExpression("Offset", "Params.linearpattern3_pitch")
linearpattern3.Occurrences = 2
body.Tip = linearpattern3

sketch6 = body.newObject("Sketcher::SketchObject", "Sketch005")
sketch6.AttachmentSupport = (doc.getObject("XZ_Plane"), [""])
sketch6.MapMode = "FlatFace"
sketch6.AttachmentOffset = App.Placement(V(0, 0, -10), App.Rotation())
sketch6.addGeometry(Part.LineSegment(V(21, -3, 0), V(21, -2, 0)), False)
sketch6.addGeometry(Part.LineSegment(V(21, -2, 0), V(25.3, -2, 0)), False)
sketch6.addGeometry(Part.ArcOfCircle(Part.Circle(V(25.3, -2.7, 0), V(0, 0, 1), 0.7), math.radians(0), math.radians(90)), False)
sketch6.addGeometry(Part.LineSegment(V(26, -2.7, 0), V(26, -17.3, 0)), False)
sketch6.addGeometry(Part.ArcOfCircle(Part.Circle(V(25.3, -17.3, 0), V(0, 0, 1), 0.7), math.radians(-90), math.radians(0)), False)
sketch6.addGeometry(Part.LineSegment(V(25.3, -18, 0), V(21, -18, 0)), False)
sketch6.addGeometry(Part.LineSegment(V(21, -18, 0), V(21, -17, 0)), False)
sketch6.addGeometry(Part.LineSegment(V(21, -17, 0), V(17, -17, 0)), False)
sketch6.addGeometry(Part.LineSegment(V(17, -17, 0), V(17, -18, 0)), False)
sketch6.addGeometry(Part.LineSegment(V(17, -18, 0), V(12.7, -18, 0)), False)
sketch6.addGeometry(Part.ArcOfCircle(Part.Circle(V(12.7, -17.3, 0), V(0, 0, 1), 0.7), math.radians(180), math.radians(270)), False)
sketch6.addGeometry(Part.LineSegment(V(12, -17.3, 0), V(12, -2.7, 0)), False)
sketch6.addGeometry(Part.ArcOfCircle(Part.Circle(V(12.7, -2.7, 0), V(0, 0, 1), 0.7), math.radians(90), math.radians(180)), False)
sketch6.addGeometry(Part.LineSegment(V(12.7, -2, 0), V(17, -2, 0)), False)
sketch6.addGeometry(Part.LineSegment(V(17, -2, 0), V(17, -3, 0)), False)
sketch6.addGeometry(Part.LineSegment(V(17, -3, 0), V(21, -3, 0)), False)
sketch6.addConstraint(Sketcher.Constraint("Coincident", 0, 2, 1, 1))
sketch6.addConstraint(Sketcher.Constraint("Tangent", 1, 2, 2, 2))
sketch6.addConstraint(Sketcher.Constraint("Tangent", 2, 1, 3, 1))
sketch6.addConstraint(Sketcher.Constraint("Tangent", 3, 2, 4, 2))
sketch6.addConstraint(Sketcher.Constraint("Tangent", 4, 1, 5, 1))
sketch6.addConstraint(Sketcher.Constraint("Coincident", 5, 2, 6, 1))
sketch6.addConstraint(Sketcher.Constraint("Coincident", 6, 2, 7, 1))
sketch6.addConstraint(Sketcher.Constraint("Coincident", 7, 2, 8, 1))
sketch6.addConstraint(Sketcher.Constraint("Coincident", 8, 2, 9, 1))
sketch6.addConstraint(Sketcher.Constraint("Tangent", 9, 2, 10, 2))
sketch6.addConstraint(Sketcher.Constraint("Tangent", 10, 1, 11, 1))
sketch6.addConstraint(Sketcher.Constraint("Tangent", 11, 2, 12, 2))
sketch6.addConstraint(Sketcher.Constraint("Tangent", 12, 1, 13, 1))
sketch6.addConstraint(Sketcher.Constraint("Coincident", 13, 2, 14, 1))
sketch6.addConstraint(Sketcher.Constraint("Coincident", 14, 2, 15, 1))
sketch6.addConstraint(Sketcher.Constraint("Coincident", 15, 2, 0, 1))
sketch6.addConstraint(Sketcher.Constraint("Vertical", 0))
sketch6.addConstraint(Sketcher.Constraint("Horizontal", 1))
sketch6.addConstraint(Sketcher.Constraint("Vertical", 3))
sketch6.addConstraint(Sketcher.Constraint("Horizontal", 5))
sketch6.addConstraint(Sketcher.Constraint("Vertical", 6))
sketch6.addConstraint(Sketcher.Constraint("Horizontal", 7))
sketch6.addConstraint(Sketcher.Constraint("Vertical", 8))
sketch6.addConstraint(Sketcher.Constraint("Horizontal", 9))
sketch6.addConstraint(Sketcher.Constraint("Vertical", 11))
sketch6.addConstraint(Sketcher.Constraint("Horizontal", 13))
sketch6.addConstraint(Sketcher.Constraint("Vertical", 14))
sketch6.addConstraint(Sketcher.Constraint("Horizontal", 15))
sketch6.addConstraint(Sketcher.Constraint("Equal", 2, 4))
sketch6.addConstraint(Sketcher.Constraint("Equal", 4, 10))
sketch6.addConstraint(Sketcher.Constraint("Equal", 10, 12))
sketch6.addConstraint(Sketcher.Constraint("Horizontal", 4, 3, 10, 3))
sketch6.addConstraint(Sketcher.Constraint("Horizontal", 2, 3, 12, 3))
sketch6.addConstraint(Sketcher.Constraint("Vertical", 0, 2, 5, 2))
sketch6.addConstraint(Sketcher.Constraint("Vertical", 8, 2, 13, 2))
sketch6.addConstraint(Sketcher.Constraint("Equal", 5, 9))
sketch6.addConstraint(Sketcher.Constraint("Equal", 0, 6))
sketch6.addConstraint(Sketcher.Constraint("Radius", 2, 0.7))
sketch6.addConstraint(Sketcher.Constraint("DistanceX", 7, 2, 7, 1, 4.0))
sketch6.addConstraint(Sketcher.Constraint("DistanceY", 0, 1, 0, 2, 1.0))
sketch6.addConstraint(Sketcher.Constraint("DistanceX", 1, 1, 1, 2, 4.3))
sketch6.addConstraint(Sketcher.Constraint("DistanceY", 3, 2, 3, 1, 14.6))
sketch6.addConstraint(Sketcher.Constraint("DistanceX", -1, 1, 0, 2, 21.0))
sketch6.addConstraint(Sketcher.Constraint("DistanceY", 0, 2, -1, 1, 2.0))
sketch6.setExpression("Constraints[37]", "Params.sketch6_radius")
sketch6.setExpression("Constraints[38]", "Params.sketch6_width")
sketch6.setExpression("Constraints[39]", "Params.sketch6_height")
sketch6.setExpression("Constraints[40]", "Params.sketch6_width2")
sketch6.setExpression("Constraints[41]", "Params.sketch6_height2")
pocket5 = body.newObject("PartDesign::Pocket", "Pocket004")
pocket5.Profile = sketch6
pocket5.setExpression("Length", "Params.pocket5_length")
pocket5.Reversed = True

sketch7 = body.newObject("Sketcher::SketchObject", "Sketch006")
sketch7.AttachmentSupport = (doc.getObject("XZ_Plane"), [""])
sketch7.MapMode = "FlatFace"
sketch7.AttachmentOffset = App.Placement(V(0, 0, -10), App.Rotation())
sketch7.addGeometry(Part.LineSegment(V(21, 16, 0), V(21, 17, 0)), False)
sketch7.addGeometry(Part.LineSegment(V(21, 17, 0), V(25.3, 17, 0)), False)
sketch7.addGeometry(Part.ArcOfCircle(Part.Circle(V(25.3, 16.3, 0), V(0, 0, 1), 0.7), math.radians(0), math.radians(90)), False)
sketch7.addGeometry(Part.LineSegment(V(26, 16.3, 0), V(26, 1.7, 0)), False)
sketch7.addGeometry(Part.ArcOfCircle(Part.Circle(V(25.3, 1.7, 0), V(0, 0, 1), 0.7), math.radians(-90), math.radians(0)), False)
sketch7.addGeometry(Part.LineSegment(V(25.3, 1, 0), V(21, 1, 0)), False)
sketch7.addGeometry(Part.LineSegment(V(21, 1, 0), V(21, 2, 0)), False)
sketch7.addGeometry(Part.LineSegment(V(21, 2, 0), V(17, 2, 0)), False)
sketch7.addGeometry(Part.LineSegment(V(17, 2, 0), V(17, 1, 0)), False)
sketch7.addGeometry(Part.LineSegment(V(17, 1, 0), V(12.7, 1, 0)), False)
sketch7.addGeometry(Part.ArcOfCircle(Part.Circle(V(12.7, 1.7, 0), V(0, 0, 1), 0.7), math.radians(180), math.radians(270)), False)
sketch7.addGeometry(Part.LineSegment(V(12, 1.7, 0), V(12, 16.3, 0)), False)
sketch7.addGeometry(Part.ArcOfCircle(Part.Circle(V(12.7, 16.3, 0), V(0, 0, 1), 0.7), math.radians(90), math.radians(180)), False)
sketch7.addGeometry(Part.LineSegment(V(12.7, 17, 0), V(17, 17, 0)), False)
sketch7.addGeometry(Part.LineSegment(V(17, 17, 0), V(17, 16, 0)), False)
sketch7.addGeometry(Part.LineSegment(V(17, 16, 0), V(21, 16, 0)), False)
sketch7.addConstraint(Sketcher.Constraint("Coincident", 0, 2, 1, 1))
sketch7.addConstraint(Sketcher.Constraint("Tangent", 1, 2, 2, 2))
sketch7.addConstraint(Sketcher.Constraint("Tangent", 2, 1, 3, 1))
sketch7.addConstraint(Sketcher.Constraint("Tangent", 3, 2, 4, 2))
sketch7.addConstraint(Sketcher.Constraint("Tangent", 4, 1, 5, 1))
sketch7.addConstraint(Sketcher.Constraint("Coincident", 5, 2, 6, 1))
sketch7.addConstraint(Sketcher.Constraint("Coincident", 6, 2, 7, 1))
sketch7.addConstraint(Sketcher.Constraint("Coincident", 7, 2, 8, 1))
sketch7.addConstraint(Sketcher.Constraint("Coincident", 8, 2, 9, 1))
sketch7.addConstraint(Sketcher.Constraint("Tangent", 9, 2, 10, 2))
sketch7.addConstraint(Sketcher.Constraint("Tangent", 10, 1, 11, 1))
sketch7.addConstraint(Sketcher.Constraint("Tangent", 11, 2, 12, 2))
sketch7.addConstraint(Sketcher.Constraint("Tangent", 12, 1, 13, 1))
sketch7.addConstraint(Sketcher.Constraint("Coincident", 13, 2, 14, 1))
sketch7.addConstraint(Sketcher.Constraint("Coincident", 14, 2, 15, 1))
sketch7.addConstraint(Sketcher.Constraint("Coincident", 15, 2, 0, 1))
sketch7.addConstraint(Sketcher.Constraint("Vertical", 0))
sketch7.addConstraint(Sketcher.Constraint("Horizontal", 1))
sketch7.addConstraint(Sketcher.Constraint("Vertical", 3))
sketch7.addConstraint(Sketcher.Constraint("Horizontal", 5))
sketch7.addConstraint(Sketcher.Constraint("Vertical", 6))
sketch7.addConstraint(Sketcher.Constraint("Horizontal", 7))
sketch7.addConstraint(Sketcher.Constraint("Vertical", 8))
sketch7.addConstraint(Sketcher.Constraint("Horizontal", 9))
sketch7.addConstraint(Sketcher.Constraint("Vertical", 11))
sketch7.addConstraint(Sketcher.Constraint("Horizontal", 13))
sketch7.addConstraint(Sketcher.Constraint("Vertical", 14))
sketch7.addConstraint(Sketcher.Constraint("Horizontal", 15))
sketch7.addConstraint(Sketcher.Constraint("Equal", 2, 4))
sketch7.addConstraint(Sketcher.Constraint("Equal", 4, 10))
sketch7.addConstraint(Sketcher.Constraint("Equal", 10, 12))
sketch7.addConstraint(Sketcher.Constraint("Horizontal", 4, 3, 10, 3))
sketch7.addConstraint(Sketcher.Constraint("Horizontal", 2, 3, 12, 3))
sketch7.addConstraint(Sketcher.Constraint("Vertical", 0, 2, 5, 2))
sketch7.addConstraint(Sketcher.Constraint("Vertical", 8, 2, 13, 2))
sketch7.addConstraint(Sketcher.Constraint("Equal", 5, 9))
sketch7.addConstraint(Sketcher.Constraint("Equal", 0, 6))
sketch7.addConstraint(Sketcher.Constraint("Radius", 2, 0.7))
sketch7.addConstraint(Sketcher.Constraint("DistanceX", 7, 2, 7, 1, 4.0))
sketch7.addConstraint(Sketcher.Constraint("DistanceY", 0, 1, 0, 2, 1.0))
sketch7.addConstraint(Sketcher.Constraint("DistanceX", 1, 1, 1, 2, 4.3))
sketch7.addConstraint(Sketcher.Constraint("DistanceY", 3, 2, 3, 1, 14.6))
sketch7.addConstraint(Sketcher.Constraint("DistanceX", -1, 1, 0, 2, 21.0))
sketch7.addConstraint(Sketcher.Constraint("DistanceY", -1, 1, 0, 2, 17.0))
sketch7.setExpression("Constraints[37]", "Params.sketch7_radius")
sketch7.setExpression("Constraints[38]", "Params.sketch7_width")
sketch7.setExpression("Constraints[39]", "Params.sketch7_height")
sketch7.setExpression("Constraints[40]", "Params.sketch7_width2")
sketch7.setExpression("Constraints[41]", "Params.sketch7_height2")
pocket6 = body.newObject("PartDesign::Pocket", "Pocket005")
pocket6.Profile = sketch7
pocket6.setExpression("Length", "Params.pocket6_length")
pocket6.Reversed = True

sketch8 = body.newObject("Sketcher::SketchObject", "Sketch007")
sketch8.AttachmentSupport = (doc.getObject("XZ_Plane"), [""])
sketch8.MapMode = "FlatFace"
sketch8.AttachmentOffset = App.Placement(V(0, 0, -10), App.Rotation())
sketch8.addGeometry(Part.LineSegment(V(21, 35, 0), V(21, 36, 0)), False)
sketch8.addGeometry(Part.LineSegment(V(21, 36, 0), V(25.3, 36, 0)), False)
sketch8.addGeometry(Part.ArcOfCircle(Part.Circle(V(25.3, 35.3, 0), V(0, 0, 1), 0.7), math.radians(0), math.radians(90)), False)
sketch8.addGeometry(Part.LineSegment(V(26, 35.3, 0), V(26, 20.7, 0)), False)
sketch8.addGeometry(Part.ArcOfCircle(Part.Circle(V(25.3, 20.7, 0), V(0, 0, 1), 0.7), math.radians(-90), math.radians(0)), False)
sketch8.addGeometry(Part.LineSegment(V(25.3, 20, 0), V(21, 20, 0)), False)
sketch8.addGeometry(Part.LineSegment(V(21, 20, 0), V(21, 21, 0)), False)
sketch8.addGeometry(Part.LineSegment(V(21, 21, 0), V(17, 21, 0)), False)
sketch8.addGeometry(Part.LineSegment(V(17, 21, 0), V(17, 20, 0)), False)
sketch8.addGeometry(Part.LineSegment(V(17, 20, 0), V(12.7, 20, 0)), False)
sketch8.addGeometry(Part.ArcOfCircle(Part.Circle(V(12.7, 20.7, 0), V(0, 0, 1), 0.7), math.radians(180), math.radians(270)), False)
sketch8.addGeometry(Part.LineSegment(V(12, 20.7, 0), V(12, 35.3, 0)), False)
sketch8.addGeometry(Part.ArcOfCircle(Part.Circle(V(12.7, 35.3, 0), V(0, 0, 1), 0.7), math.radians(90), math.radians(180)), False)
sketch8.addGeometry(Part.LineSegment(V(12.7, 36, 0), V(17, 36, 0)), False)
sketch8.addGeometry(Part.LineSegment(V(17, 36, 0), V(17, 35, 0)), False)
sketch8.addGeometry(Part.LineSegment(V(17, 35, 0), V(21, 35, 0)), False)
sketch8.addConstraint(Sketcher.Constraint("Coincident", 0, 2, 1, 1))
sketch8.addConstraint(Sketcher.Constraint("Tangent", 1, 2, 2, 2))
sketch8.addConstraint(Sketcher.Constraint("Tangent", 2, 1, 3, 1))
sketch8.addConstraint(Sketcher.Constraint("Tangent", 3, 2, 4, 2))
sketch8.addConstraint(Sketcher.Constraint("Tangent", 4, 1, 5, 1))
sketch8.addConstraint(Sketcher.Constraint("Coincident", 5, 2, 6, 1))
sketch8.addConstraint(Sketcher.Constraint("Coincident", 6, 2, 7, 1))
sketch8.addConstraint(Sketcher.Constraint("Coincident", 7, 2, 8, 1))
sketch8.addConstraint(Sketcher.Constraint("Coincident", 8, 2, 9, 1))
sketch8.addConstraint(Sketcher.Constraint("Tangent", 9, 2, 10, 2))
sketch8.addConstraint(Sketcher.Constraint("Tangent", 10, 1, 11, 1))
sketch8.addConstraint(Sketcher.Constraint("Tangent", 11, 2, 12, 2))
sketch8.addConstraint(Sketcher.Constraint("Tangent", 12, 1, 13, 1))
sketch8.addConstraint(Sketcher.Constraint("Coincident", 13, 2, 14, 1))
sketch8.addConstraint(Sketcher.Constraint("Coincident", 14, 2, 15, 1))
sketch8.addConstraint(Sketcher.Constraint("Coincident", 15, 2, 0, 1))
sketch8.addConstraint(Sketcher.Constraint("Vertical", 0))
sketch8.addConstraint(Sketcher.Constraint("Horizontal", 1))
sketch8.addConstraint(Sketcher.Constraint("Vertical", 3))
sketch8.addConstraint(Sketcher.Constraint("Horizontal", 5))
sketch8.addConstraint(Sketcher.Constraint("Vertical", 6))
sketch8.addConstraint(Sketcher.Constraint("Horizontal", 7))
sketch8.addConstraint(Sketcher.Constraint("Vertical", 8))
sketch8.addConstraint(Sketcher.Constraint("Horizontal", 9))
sketch8.addConstraint(Sketcher.Constraint("Vertical", 11))
sketch8.addConstraint(Sketcher.Constraint("Horizontal", 13))
sketch8.addConstraint(Sketcher.Constraint("Vertical", 14))
sketch8.addConstraint(Sketcher.Constraint("Horizontal", 15))
sketch8.addConstraint(Sketcher.Constraint("Equal", 2, 4))
sketch8.addConstraint(Sketcher.Constraint("Equal", 4, 10))
sketch8.addConstraint(Sketcher.Constraint("Equal", 10, 12))
sketch8.addConstraint(Sketcher.Constraint("Horizontal", 4, 3, 10, 3))
sketch8.addConstraint(Sketcher.Constraint("Horizontal", 2, 3, 12, 3))
sketch8.addConstraint(Sketcher.Constraint("Vertical", 0, 2, 5, 2))
sketch8.addConstraint(Sketcher.Constraint("Vertical", 8, 2, 13, 2))
sketch8.addConstraint(Sketcher.Constraint("Equal", 5, 9))
sketch8.addConstraint(Sketcher.Constraint("Equal", 0, 6))
sketch8.addConstraint(Sketcher.Constraint("Radius", 2, 0.7))
sketch8.addConstraint(Sketcher.Constraint("DistanceX", 7, 2, 7, 1, 4.0))
sketch8.addConstraint(Sketcher.Constraint("DistanceY", 0, 1, 0, 2, 1.0))
sketch8.addConstraint(Sketcher.Constraint("DistanceX", 1, 1, 1, 2, 4.3))
sketch8.addConstraint(Sketcher.Constraint("DistanceY", 3, 2, 3, 1, 14.6))
sketch8.addConstraint(Sketcher.Constraint("DistanceX", -1, 1, 0, 2, 21.0))
sketch8.addConstraint(Sketcher.Constraint("DistanceY", -1, 1, 0, 2, 36.0))
sketch8.setExpression("Constraints[37]", "Params.sketch8_radius")
sketch8.setExpression("Constraints[38]", "Params.sketch8_width")
sketch8.setExpression("Constraints[39]", "Params.sketch8_height")
sketch8.setExpression("Constraints[40]", "Params.sketch8_width2")
sketch8.setExpression("Constraints[41]", "Params.sketch8_height2")
pocket7 = body.newObject("PartDesign::Pocket", "Pocket006")
pocket7.Profile = sketch8
pocket7.setExpression("Length", "Params.pocket7_length")
pocket7.Reversed = True

doc.recompute()
